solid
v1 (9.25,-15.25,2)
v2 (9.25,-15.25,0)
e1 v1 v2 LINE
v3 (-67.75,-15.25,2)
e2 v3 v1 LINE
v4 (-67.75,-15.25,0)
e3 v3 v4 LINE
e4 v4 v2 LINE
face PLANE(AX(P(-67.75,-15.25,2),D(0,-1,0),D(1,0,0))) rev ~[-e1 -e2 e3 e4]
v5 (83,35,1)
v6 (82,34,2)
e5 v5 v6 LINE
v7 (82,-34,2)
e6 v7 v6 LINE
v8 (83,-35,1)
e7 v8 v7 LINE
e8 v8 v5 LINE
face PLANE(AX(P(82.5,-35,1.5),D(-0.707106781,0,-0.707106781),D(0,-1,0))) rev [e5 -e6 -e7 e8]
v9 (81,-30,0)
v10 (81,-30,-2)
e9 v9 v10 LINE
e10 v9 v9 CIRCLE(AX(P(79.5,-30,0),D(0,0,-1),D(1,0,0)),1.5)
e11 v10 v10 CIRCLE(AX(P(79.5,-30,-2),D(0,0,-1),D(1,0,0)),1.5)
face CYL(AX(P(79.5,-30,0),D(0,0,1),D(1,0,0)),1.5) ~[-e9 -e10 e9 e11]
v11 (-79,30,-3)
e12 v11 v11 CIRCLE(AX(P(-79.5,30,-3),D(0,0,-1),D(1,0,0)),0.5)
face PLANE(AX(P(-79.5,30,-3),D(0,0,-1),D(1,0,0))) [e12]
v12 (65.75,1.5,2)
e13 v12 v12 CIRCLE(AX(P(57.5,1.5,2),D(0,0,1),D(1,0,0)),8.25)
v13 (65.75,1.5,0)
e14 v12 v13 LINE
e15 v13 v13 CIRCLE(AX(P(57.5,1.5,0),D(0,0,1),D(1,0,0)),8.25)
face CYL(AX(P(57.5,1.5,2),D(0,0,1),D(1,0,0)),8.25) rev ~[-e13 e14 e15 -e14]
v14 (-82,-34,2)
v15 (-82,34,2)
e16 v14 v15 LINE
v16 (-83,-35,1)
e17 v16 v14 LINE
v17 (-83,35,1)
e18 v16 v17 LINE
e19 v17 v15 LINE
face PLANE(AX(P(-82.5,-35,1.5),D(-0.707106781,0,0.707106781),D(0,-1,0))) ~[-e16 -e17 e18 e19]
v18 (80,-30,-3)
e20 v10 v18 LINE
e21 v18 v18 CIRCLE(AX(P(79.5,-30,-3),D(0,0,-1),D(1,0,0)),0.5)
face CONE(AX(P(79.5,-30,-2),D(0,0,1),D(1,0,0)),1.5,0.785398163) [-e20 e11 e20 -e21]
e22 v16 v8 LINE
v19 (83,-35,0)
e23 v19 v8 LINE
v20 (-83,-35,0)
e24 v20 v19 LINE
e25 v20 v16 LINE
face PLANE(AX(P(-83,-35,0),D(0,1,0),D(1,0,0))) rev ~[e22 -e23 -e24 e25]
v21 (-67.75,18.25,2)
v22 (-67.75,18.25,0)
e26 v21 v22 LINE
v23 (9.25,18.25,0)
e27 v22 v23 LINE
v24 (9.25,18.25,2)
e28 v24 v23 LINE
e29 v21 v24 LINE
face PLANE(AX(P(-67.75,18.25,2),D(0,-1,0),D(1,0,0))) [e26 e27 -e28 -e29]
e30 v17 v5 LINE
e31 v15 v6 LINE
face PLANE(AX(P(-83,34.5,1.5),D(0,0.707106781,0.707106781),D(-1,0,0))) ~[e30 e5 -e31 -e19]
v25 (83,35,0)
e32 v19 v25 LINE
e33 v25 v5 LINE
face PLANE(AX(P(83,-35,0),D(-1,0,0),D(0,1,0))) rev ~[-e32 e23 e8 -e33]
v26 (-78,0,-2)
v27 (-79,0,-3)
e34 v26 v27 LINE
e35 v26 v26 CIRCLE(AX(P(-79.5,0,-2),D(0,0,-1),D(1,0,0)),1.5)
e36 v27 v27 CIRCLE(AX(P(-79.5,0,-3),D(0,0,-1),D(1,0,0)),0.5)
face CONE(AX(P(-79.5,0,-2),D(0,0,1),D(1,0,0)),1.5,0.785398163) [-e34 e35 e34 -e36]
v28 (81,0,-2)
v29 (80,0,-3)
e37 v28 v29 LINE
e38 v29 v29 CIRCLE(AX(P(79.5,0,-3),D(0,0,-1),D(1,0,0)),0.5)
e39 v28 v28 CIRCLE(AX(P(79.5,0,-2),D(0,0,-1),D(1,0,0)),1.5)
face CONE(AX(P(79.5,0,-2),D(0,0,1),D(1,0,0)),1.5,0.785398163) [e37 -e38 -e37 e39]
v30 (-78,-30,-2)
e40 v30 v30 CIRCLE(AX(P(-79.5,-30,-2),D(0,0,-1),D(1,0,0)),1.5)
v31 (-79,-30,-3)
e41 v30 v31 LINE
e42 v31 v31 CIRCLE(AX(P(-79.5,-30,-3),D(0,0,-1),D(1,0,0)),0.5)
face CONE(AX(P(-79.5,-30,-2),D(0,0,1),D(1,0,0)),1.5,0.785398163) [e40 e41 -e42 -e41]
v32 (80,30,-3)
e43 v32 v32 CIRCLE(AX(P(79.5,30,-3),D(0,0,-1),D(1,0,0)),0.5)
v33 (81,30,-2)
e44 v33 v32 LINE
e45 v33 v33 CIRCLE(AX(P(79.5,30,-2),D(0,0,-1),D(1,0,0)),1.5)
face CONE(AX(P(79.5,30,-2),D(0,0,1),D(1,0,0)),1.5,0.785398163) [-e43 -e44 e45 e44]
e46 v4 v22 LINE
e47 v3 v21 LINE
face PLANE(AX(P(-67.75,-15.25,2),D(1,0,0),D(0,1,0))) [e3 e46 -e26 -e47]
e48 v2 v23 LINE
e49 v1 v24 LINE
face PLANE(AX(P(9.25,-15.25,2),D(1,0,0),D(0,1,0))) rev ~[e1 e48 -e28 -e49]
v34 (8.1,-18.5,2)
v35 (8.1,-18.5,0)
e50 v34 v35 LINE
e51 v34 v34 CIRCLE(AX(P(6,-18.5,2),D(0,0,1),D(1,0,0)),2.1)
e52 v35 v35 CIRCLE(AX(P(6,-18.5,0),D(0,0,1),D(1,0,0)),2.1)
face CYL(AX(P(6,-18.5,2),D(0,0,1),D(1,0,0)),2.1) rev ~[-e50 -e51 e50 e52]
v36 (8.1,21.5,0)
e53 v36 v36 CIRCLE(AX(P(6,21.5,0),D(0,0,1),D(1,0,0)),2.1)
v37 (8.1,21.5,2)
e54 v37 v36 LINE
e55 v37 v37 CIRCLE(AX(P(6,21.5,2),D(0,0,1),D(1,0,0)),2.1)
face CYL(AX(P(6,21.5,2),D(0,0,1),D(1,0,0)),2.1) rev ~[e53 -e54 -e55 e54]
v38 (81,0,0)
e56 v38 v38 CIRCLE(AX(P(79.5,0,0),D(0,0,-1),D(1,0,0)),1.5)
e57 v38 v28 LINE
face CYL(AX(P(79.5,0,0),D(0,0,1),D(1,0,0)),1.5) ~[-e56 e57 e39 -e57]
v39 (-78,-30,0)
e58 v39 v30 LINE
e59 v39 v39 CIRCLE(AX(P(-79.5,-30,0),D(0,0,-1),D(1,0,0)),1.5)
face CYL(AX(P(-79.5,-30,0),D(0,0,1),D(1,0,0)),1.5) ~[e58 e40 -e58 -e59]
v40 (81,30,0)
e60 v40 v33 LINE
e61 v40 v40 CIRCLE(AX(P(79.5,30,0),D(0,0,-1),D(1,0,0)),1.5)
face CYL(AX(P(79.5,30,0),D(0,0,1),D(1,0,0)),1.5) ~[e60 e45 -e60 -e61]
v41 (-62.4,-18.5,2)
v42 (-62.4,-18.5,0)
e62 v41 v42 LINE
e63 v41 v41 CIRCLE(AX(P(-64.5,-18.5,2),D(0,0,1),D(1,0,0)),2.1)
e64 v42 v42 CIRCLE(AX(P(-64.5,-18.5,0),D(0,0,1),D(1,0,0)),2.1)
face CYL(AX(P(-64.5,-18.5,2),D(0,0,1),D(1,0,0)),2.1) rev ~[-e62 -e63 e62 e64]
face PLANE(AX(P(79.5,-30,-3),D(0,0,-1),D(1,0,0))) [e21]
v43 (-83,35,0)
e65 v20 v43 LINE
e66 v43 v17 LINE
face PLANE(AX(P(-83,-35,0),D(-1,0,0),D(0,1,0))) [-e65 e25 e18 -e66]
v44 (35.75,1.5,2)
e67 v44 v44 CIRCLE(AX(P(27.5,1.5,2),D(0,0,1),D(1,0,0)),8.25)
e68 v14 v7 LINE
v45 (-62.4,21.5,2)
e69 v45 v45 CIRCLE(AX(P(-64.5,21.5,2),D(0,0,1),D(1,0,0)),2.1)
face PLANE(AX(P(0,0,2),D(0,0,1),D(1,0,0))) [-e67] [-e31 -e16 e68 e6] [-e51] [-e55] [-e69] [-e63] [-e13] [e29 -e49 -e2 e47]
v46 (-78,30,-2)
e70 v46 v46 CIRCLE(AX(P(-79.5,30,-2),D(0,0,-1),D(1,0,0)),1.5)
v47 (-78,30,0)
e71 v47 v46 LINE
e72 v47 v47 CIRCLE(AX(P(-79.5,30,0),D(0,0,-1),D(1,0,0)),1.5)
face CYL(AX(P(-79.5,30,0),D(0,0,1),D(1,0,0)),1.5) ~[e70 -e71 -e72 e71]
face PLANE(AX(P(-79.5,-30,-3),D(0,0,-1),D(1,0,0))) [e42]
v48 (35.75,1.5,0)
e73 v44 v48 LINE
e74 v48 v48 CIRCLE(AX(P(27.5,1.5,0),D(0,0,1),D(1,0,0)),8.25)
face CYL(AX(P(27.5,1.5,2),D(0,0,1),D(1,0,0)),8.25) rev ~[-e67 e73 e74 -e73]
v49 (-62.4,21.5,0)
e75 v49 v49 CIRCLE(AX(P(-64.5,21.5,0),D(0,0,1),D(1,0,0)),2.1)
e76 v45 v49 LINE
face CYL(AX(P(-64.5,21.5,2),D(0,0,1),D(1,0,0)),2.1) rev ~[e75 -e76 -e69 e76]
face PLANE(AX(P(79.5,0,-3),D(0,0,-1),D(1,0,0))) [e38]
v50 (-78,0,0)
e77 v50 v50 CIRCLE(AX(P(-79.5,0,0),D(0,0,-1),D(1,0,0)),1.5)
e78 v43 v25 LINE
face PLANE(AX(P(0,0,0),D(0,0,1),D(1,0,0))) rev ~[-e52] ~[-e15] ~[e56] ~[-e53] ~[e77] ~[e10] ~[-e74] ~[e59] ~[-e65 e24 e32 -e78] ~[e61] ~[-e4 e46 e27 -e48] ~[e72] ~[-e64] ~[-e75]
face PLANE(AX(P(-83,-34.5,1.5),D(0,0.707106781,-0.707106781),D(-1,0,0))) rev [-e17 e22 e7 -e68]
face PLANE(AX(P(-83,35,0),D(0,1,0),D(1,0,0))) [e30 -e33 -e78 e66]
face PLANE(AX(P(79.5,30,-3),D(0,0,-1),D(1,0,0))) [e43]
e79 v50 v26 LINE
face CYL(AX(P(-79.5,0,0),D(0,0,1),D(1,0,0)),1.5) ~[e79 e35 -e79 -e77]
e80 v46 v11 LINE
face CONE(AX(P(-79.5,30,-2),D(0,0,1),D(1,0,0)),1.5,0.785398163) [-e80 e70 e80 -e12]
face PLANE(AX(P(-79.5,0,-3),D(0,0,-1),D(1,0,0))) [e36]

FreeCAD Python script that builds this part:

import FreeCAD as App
import Part
import Sketcher
Q = App.Units.Quantity


def edges_at(feature, points):
    """Names of the edges that pass closest to the given points."""
    edges = feature.Shape.Edges
    near = lambda p: min(range(len(edges)), key=lambda i: edges[i].distToShape(Part.Vertex(*p))[0])
    return sorted({f"Edge{near(p) + 1}" for p in points})

doc = App.newDocument("Part")
body = doc.addObject("PartDesign::Body", "Body")

sketch1 = doc.addObject("Sketcher::SketchObject", "Sketch")
body.addObject(sketch1)
sketch1.AttachmentSupport = (doc.XY_Plane, [""])
sketch1.MapMode = "FlatFace"
sketch1.addGeometry([
    Part.LineSegment(App.Vector(-83, 35, 0), App.Vector(-83, -35, 0)),
    Part.LineSegment(App.Vector(-83, -35, 0), App.Vector(83, -35, 0)),
    Part.LineSegment(App.Vector(83, -35, 0), App.Vector(83, 35, 0)),
    Part.LineSegment(App.Vector(83, 35, 0), App.Vector(-83, 35, 0)),
], False)
sketch1.addConstraint([
    Sketcher.Constraint("Coincident", 0, 2, 1, 1),
    Sketcher.Constraint("Coincident", 1, 2, 2, 1),
    Sketcher.Constraint("Coincident", 2, 2, 3, 1),
    Sketcher.Constraint("Coincident", 3, 2, 0, 1),
    Sketcher.Constraint("Vertical", 0),
    Sketcher.Constraint("Horizontal", 1),
    Sketcher.Constraint("Vertical", 2),
    Sketcher.Constraint("Horizontal", 3),
    Sketcher.Constraint("Symmetric", 0, 2, 2, 2, -1, 1),
    Sketcher.Constraint("DistanceX", 1, 1, 1, 2, Q("166 mm")),
    Sketcher.Constraint("DistanceY", 0, 2, 0, 1, Q("70 mm")),
])
pad1 = doc.addObject("PartDesign::Pad", "Pad")
body.addObject(pad1)
pad1.Profile = sketch1
pad1.Length = 2

sketch2 = doc.addObject("Sketcher::SketchObject", "Sketch001")
body.addObject(sketch2)
sketch2.AttachmentSupport = (doc.XY_Plane, [""])
sketch2.MapMode = "FlatFace"
sketch2.AttachmentOffset = App.Placement(App.Vector(0, 0, 2), App.Rotation())
sketch2.addGeometry([
    Part.LineSegment(App.Vector(-67.8, 18.2, 0), App.Vector(-67.8, -15.2, 0)),
    Part.LineSegment(App.Vector(-67.8, -15.2, 0), App.Vector(9.2, -15.2, 0)),
    Part.LineSegment(App.Vector(9.2, -15.2, 0), App.Vector(9.2, 18.2, 0)),
    Part.LineSegment(App.Vector(9.2, 18.2, 0), App.Vector(-67.8, 18.2, 0)),
    Part.Circle(App.Vector(-64.5, 21.5, 0), App.Vector(0, 0, 1), 2.1),
    Part.Circle(App.Vector(6, 21.5, 0), App.Vector(0, 0, 1), 2.1),
    Part.Circle(App.Vector(6, -18.5, 0), App.Vector(0, 0, 1), 2.1),
    Part.Circle(App.Vector(-64.5, -18.5, 0), App.Vector(0, 0, 1), 2.1),
    Part.Circle(App.Vector(27.5, 1.5, 0), App.Vector(0, 0, 1), 8.2),
    Part.Circle(App.Vector(57.5, 1.5, 0), App.Vector(0, 0, 1), 8.2),
], False)
sketch2.addConstraint([
    Sketcher.Constraint("Coincident", 0, 2, 1, 1),
    Sketcher.Constraint("Coincident", 1, 2, 2, 1),
    Sketcher.Constraint("Coincident", 2, 2, 3, 1),
    Sketcher.Constraint("Coincident", 3, 2, 0, 1),
    Sketcher.Constraint("Vertical", 0),
    Sketcher.Constraint("Horizontal", 1),
    Sketcher.Constraint("Vertical", 2),
    Sketcher.Constraint("Horizontal", 3),
    Sketcher.Constraint("Equal", 4, 5),
    Sketcher.Constraint("Equal", 5, 6),
    Sketcher.Constraint("Equal", 6, 7),
    Sketcher.Constraint("Equal", 8, 9),
    Sketcher.Constraint("Horizontal", 4, 3, 5, 3),
    Sketcher.Constraint("Horizontal", 6, 3, 7, 3),
    Sketcher.Constraint("Horizontal", 8, 3, 9, 3),
    Sketcher.Constraint("Vertical", 5, 3, 6, 3),
    Sketcher.Constraint("Vertical", 4, 3, 7, 3),
    Sketcher.Constraint("Diameter", 4, Q("4.2 mm")),
    Sketcher.Constraint("Diameter", 8, Q("16.5 mm")),
    Sketcher.Constraint("DistanceX", 1, 1, 1, 2, Q("77 mm")),
    Sketcher.Constraint("DistanceY", 0, 2, 0, 1, Q("33.5 mm")),
    Sketcher.Constraint("DistanceX", -1, 1, 5, 3, Q("6 mm")),
    Sketcher.Constraint("DistanceY", 6, 3, 5, 3, Q("40 mm")),
    Sketcher.Constraint("DistanceY", 8, 3, 5, 3, Q("20 mm")),
    Sketcher.Constraint("DistanceX", 4, 3, 8, 3, Q("92 mm")),
    Sketcher.Constraint("DistanceX", 8, 3, 9, 3, Q("30 mm")),
    Sketcher.Constraint("DistanceX", 4, 3, -1, 1, Q("64.5 mm")),
    Sketcher.Constraint("DistanceY", -1, 1, 4, 3, Q("21.5 mm")),
    Sketcher.Constraint("DistanceX", 0, 2, -1, 1, Q("67.75 mm")),
    Sketcher.Constraint("DistanceY", 0, 2, -1, 1, Q("15.25 mm")),
])
pocket1 = doc.addObject("PartDesign::Pocket", "Pocket")
body.addObject(pocket1)
pocket1.Profile = sketch2
pocket1.Type = "ThroughAll"

sketch3 = doc.addObject("Sketcher::SketchObject", "Sketch002")
body.addObject(sketch3)
sketch3.AttachmentSupport = (doc.XY_Plane, [""])
sketch3.MapMode = "FlatFace"
sketch3.addGeometry([
    Part.Circle(App.Vector(-79.5, -30, 0), App.Vector(0, 0, 1), 1.5),
    Part.Circle(App.Vector(-79.5, 30, 0), App.Vector(0, 0, 1), 1.5),
    Part.Circle(App.Vector(-79.5, 0, 0), App.Vector(0, 0, 1), 1.5),
    Part.Circle(App.Vector(79.5, 30, 0), App.Vector(0, 0, 1), 1.5),
    Part.Circle(App.Vector(79.5, -30, 0), App.Vector(0, 0, 1), 1.5),
    Part.Circle(App.Vector(79.5, 0, 0), App.Vector(0, 0, 1), 1.5),
], False)
sketch3.addConstraint([
    Sketcher.Constraint("Equal", 0, 1),
    Sketcher.Constraint("Equal", 1, 2),
    Sketcher.Constraint("Equal", 2, 3),
    Sketcher.Constraint("Equal", 3, 4),
    Sketcher.Constraint("Equal", 4, 5),
    Sketcher.Constraint("Symmetric", 0, 3, 3, 3, -1, 1),
    Sketcher.Constraint("Symmetric", 1, 3, 4, 3, -1, 1),
    Sketcher.Constraint("Symmetric", 2, 3, 5, 3, -1, 1),
    Sketcher.Constraint("Symmetric", 1, 3, 3, 3, -2),
    Sketcher.Constraint("PointOnObject", 2, 3, -1),
    Sketcher.Constraint("Vertical", 1, 3, 2, 3),
    Sketcher.Constraint("Diameter", 0, Q("3 mm")),
    Sketcher.Constraint("DistanceY", 0, 3, -1, 1, Q("30 mm")),
    Sketcher.Constraint("DistanceX", 1, 3, 3, 3, Q("159 mm")),
])
pad2 = doc.addObject("PartDesign::Pad", "Pad001")
body.addObject(pad2)
pad2.Profile = sketch3
pad2.Length = 3
pad2.Reversed = True
doc.recompute()

chamfer = doc.addObject("PartDesign::Chamfer", "Chamfer")
body.addObject(chamfer)
chamfer.Base = (pad2, edges_at(pad2, [
    (-81, -30, -3),
    (-81, 0, -3),
    (-81, 30, -3),
    (78, 30, -3),
    (78, 0, -3),
    (78, -30, -3),
]))
chamfer.Size = 1
doc.recompute()

chamfer2 = doc.addObject("PartDesign::Chamfer", "Chamfer001")
body.addObject(chamfer2)
chamfer2.Base = (chamfer, edges_at(chamfer, [
    (83, 0, 2),
    (0, -35, 2),
    (-83, 0, 2),
    (0, 35, 2),
]))
chamfer2.Size = 1

doc.recompute()
